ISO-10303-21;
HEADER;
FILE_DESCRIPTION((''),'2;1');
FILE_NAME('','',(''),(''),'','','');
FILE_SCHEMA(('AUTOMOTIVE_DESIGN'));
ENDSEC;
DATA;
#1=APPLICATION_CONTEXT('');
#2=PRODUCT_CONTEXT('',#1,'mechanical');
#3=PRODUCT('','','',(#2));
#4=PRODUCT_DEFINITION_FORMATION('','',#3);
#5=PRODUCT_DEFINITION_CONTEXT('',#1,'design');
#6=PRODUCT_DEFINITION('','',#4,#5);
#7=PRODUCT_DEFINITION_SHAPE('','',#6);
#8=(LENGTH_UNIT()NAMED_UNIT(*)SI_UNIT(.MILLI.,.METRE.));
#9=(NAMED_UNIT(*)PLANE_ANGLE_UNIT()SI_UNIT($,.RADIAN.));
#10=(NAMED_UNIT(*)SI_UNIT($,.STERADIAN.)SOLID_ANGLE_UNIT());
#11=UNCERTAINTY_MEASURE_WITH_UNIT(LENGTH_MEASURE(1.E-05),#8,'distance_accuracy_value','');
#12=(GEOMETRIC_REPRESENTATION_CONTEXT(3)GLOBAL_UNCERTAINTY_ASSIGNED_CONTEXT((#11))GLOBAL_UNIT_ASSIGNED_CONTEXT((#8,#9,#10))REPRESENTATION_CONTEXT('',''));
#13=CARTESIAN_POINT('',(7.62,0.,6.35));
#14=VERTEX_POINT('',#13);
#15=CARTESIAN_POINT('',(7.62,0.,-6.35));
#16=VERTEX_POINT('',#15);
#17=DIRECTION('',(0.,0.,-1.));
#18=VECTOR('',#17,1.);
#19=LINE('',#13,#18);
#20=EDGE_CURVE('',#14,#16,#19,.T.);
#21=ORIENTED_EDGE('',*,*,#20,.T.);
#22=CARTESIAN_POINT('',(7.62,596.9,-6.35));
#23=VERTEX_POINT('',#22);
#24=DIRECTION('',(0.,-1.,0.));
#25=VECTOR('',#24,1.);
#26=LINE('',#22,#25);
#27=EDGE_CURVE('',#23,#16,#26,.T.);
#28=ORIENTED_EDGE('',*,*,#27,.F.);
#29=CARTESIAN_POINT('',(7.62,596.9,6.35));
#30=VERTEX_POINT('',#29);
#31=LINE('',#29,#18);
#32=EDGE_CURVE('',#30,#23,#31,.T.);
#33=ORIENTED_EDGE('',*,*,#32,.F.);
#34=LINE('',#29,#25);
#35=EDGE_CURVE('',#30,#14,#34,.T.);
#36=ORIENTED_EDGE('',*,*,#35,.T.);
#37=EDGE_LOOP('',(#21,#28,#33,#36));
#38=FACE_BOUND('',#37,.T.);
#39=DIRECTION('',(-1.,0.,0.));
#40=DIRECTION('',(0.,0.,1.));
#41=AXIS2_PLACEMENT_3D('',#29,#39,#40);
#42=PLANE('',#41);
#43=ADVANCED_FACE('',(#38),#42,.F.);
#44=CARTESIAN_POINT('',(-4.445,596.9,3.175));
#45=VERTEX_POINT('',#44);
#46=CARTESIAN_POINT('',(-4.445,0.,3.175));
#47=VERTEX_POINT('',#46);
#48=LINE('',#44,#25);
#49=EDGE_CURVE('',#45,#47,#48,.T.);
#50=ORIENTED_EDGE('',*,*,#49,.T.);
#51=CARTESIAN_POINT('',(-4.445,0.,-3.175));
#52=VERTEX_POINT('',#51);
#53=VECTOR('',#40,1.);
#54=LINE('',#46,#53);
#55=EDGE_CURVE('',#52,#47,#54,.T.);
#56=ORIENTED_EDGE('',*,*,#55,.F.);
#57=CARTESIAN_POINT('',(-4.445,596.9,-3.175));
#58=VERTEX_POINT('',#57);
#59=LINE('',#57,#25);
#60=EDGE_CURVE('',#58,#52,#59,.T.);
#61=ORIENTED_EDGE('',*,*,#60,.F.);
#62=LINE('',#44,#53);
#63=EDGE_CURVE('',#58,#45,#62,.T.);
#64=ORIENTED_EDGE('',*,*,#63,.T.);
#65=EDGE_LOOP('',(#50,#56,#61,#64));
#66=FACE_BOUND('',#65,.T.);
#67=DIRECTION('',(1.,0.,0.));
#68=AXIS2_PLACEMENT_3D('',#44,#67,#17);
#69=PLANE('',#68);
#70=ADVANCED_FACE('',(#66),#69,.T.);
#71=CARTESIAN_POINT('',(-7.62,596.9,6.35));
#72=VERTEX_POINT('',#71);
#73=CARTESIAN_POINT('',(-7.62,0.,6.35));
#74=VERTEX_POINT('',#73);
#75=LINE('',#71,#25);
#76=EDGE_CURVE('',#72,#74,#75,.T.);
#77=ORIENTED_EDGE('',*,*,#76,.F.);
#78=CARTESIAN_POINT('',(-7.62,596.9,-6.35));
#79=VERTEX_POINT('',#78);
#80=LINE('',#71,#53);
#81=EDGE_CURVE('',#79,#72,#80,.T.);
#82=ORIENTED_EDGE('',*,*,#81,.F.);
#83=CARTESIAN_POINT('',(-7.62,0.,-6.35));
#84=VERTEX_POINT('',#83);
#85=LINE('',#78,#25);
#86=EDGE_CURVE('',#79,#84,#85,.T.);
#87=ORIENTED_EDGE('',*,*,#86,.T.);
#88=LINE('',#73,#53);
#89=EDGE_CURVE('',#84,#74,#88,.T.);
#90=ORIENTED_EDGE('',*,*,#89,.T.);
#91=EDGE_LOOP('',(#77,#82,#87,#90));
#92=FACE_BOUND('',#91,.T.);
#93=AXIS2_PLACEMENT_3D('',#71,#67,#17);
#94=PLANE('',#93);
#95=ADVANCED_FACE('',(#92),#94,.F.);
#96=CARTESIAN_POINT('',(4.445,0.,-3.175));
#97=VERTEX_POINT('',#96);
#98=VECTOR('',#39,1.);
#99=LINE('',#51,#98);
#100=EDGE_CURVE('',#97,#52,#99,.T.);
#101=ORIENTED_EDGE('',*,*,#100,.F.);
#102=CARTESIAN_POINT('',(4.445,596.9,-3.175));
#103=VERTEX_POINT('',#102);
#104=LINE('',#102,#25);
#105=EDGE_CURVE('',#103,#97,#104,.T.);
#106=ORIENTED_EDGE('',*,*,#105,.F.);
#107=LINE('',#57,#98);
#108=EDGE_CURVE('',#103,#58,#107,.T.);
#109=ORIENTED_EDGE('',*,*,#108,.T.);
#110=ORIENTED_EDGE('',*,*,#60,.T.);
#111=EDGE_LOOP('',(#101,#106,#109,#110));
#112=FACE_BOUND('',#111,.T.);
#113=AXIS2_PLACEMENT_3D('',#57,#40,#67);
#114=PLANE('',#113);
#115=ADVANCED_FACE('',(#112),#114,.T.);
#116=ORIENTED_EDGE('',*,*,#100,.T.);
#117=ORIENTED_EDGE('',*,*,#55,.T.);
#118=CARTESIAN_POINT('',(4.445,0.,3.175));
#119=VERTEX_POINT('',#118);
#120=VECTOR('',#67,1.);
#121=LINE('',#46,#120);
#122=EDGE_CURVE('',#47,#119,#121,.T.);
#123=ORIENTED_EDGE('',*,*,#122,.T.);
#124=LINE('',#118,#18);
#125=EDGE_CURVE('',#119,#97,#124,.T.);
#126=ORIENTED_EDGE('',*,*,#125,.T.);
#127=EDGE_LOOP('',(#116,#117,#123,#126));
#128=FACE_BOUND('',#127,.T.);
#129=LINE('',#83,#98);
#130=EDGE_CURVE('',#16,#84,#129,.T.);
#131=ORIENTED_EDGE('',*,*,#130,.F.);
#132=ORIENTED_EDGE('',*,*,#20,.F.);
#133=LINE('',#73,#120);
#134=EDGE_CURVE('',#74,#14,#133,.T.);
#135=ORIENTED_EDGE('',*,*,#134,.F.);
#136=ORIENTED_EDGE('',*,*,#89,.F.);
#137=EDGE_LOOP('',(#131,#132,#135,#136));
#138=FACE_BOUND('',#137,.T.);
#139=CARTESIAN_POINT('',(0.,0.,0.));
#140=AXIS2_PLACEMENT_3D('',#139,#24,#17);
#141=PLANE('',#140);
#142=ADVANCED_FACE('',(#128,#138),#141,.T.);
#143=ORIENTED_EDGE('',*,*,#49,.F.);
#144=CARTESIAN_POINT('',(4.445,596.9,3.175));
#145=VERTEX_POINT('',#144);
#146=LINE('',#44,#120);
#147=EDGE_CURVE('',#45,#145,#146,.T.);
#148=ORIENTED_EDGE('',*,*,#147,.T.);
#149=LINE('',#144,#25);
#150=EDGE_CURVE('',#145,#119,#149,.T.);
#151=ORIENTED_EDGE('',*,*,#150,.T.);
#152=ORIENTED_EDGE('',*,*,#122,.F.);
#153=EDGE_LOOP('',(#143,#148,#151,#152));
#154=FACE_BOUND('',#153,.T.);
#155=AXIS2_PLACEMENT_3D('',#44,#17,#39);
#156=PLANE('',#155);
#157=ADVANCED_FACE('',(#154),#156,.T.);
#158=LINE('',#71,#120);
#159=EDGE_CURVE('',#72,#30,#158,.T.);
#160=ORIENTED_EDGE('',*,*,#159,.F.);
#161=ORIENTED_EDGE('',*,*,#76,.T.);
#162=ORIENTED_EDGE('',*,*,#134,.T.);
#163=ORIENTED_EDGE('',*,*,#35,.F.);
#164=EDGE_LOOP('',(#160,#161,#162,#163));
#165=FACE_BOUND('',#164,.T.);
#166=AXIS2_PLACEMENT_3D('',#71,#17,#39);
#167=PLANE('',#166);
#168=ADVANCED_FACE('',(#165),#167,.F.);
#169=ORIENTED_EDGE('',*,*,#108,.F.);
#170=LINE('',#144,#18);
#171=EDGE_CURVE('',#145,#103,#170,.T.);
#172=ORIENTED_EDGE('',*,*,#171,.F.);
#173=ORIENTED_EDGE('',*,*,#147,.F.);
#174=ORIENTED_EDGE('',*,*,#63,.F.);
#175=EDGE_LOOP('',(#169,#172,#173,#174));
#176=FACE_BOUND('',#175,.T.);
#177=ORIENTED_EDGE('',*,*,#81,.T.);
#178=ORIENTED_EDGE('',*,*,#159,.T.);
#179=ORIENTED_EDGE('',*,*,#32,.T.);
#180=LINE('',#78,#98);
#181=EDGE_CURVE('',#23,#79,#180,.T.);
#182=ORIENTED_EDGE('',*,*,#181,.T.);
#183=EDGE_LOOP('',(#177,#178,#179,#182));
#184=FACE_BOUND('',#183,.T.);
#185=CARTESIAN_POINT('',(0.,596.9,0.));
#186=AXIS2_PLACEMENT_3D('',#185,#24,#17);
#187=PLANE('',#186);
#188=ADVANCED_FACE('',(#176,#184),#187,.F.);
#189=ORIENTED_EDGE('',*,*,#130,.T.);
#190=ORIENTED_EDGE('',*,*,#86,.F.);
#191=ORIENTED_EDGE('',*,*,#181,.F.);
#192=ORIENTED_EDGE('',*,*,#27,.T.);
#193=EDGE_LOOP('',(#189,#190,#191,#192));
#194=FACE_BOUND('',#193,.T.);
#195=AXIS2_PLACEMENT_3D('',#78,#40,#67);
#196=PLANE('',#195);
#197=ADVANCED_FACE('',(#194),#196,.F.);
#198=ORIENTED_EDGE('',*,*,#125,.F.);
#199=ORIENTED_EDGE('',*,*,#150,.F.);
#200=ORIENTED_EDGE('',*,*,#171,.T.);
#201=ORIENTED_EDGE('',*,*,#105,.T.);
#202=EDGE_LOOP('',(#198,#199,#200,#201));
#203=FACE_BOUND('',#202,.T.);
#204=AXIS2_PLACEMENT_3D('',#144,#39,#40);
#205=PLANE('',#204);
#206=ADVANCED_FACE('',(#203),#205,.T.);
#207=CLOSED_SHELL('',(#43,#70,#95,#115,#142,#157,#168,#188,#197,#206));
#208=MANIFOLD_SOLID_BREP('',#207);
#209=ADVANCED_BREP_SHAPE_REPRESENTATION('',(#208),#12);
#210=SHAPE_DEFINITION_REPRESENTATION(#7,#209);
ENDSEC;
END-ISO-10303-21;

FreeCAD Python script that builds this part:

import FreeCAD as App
import Part
import Sketcher

V = App.Vector
Q = App.Units.Quantity

doc = App.newDocument("Part")
body = doc.addObject("PartDesign::Body", "Body")

# Sketch on XZ plane
sketch1 = body.newObject("Sketcher::SketchObject", "Sketch")
sketch1.AttachmentSupport = (doc.getObject("XZ_Plane"), [""])
sketch1.MapMode = "FlatFace"
sketch1.addGeometry([
    Part.LineSegment(V(-7.62, -6.35, 0), V(-7.62, 6.35, 0)),  # 0
    Part.LineSegment(V(-7.62, 6.35, 0), V(7.62, 6.35, 0)),  # 1
    Part.LineSegment(V(7.62, 6.35, 0), V(7.62, -6.35, 0)),  # 2
    Part.LineSegment(V(7.62, -6.35, 0), V(-7.62, -6.35, 0)),  # 3
    Part.LineSegment(V(4.445, 3.175, 0), V(-4.445, 3.175, 0)),  # 4
    Part.LineSegment(V(-4.445, 3.175, 0), V(-4.445, -3.175, 0)),  # 5
    Part.LineSegment(V(-4.445, -3.175, 0), V(4.445, -3.175, 0)),  # 6
    Part.LineSegment(V(4.445, -3.175, 0), V(4.445, 3.175, 0)),  # 7
], False)
sketch1.addConstraint([
    Sketcher.Constraint("Coincident", 0, 2, 1, 1),
    Sketcher.Constraint("Coincident", 1, 2, 2, 1),
    Sketcher.Constraint("Coincident", 2, 2, 3, 1),
    Sketcher.Constraint("Coincident", 3, 2, 0, 1),
    Sketcher.Constraint("Coincident", 4, 2, 5, 1),
    Sketcher.Constraint("Coincident", 5, 2, 6, 1),
    Sketcher.Constraint("Coincident", 6, 2, 7, 1),
    Sketcher.Constraint("Coincident", 7, 2, 4, 1),
    Sketcher.Constraint("Vertical", 0),
    Sketcher.Constraint("Horizontal", 1),
    Sketcher.Constraint("Vertical", 2),
    Sketcher.Constraint("Horizontal", 3),
    Sketcher.Constraint("Horizontal", 4),
    Sketcher.Constraint("Vertical", 5),
    Sketcher.Constraint("Horizontal", 6),
    Sketcher.Constraint("Vertical", 7),
    Sketcher.Constraint("Symmetric", 0, 2, 2, 2, -1, 1),
    Sketcher.Constraint("Symmetric", 4, 2, 6, 2, -1, 1),
    Sketcher.Constraint("DistanceX", 1, 1, 1, 2, Q("0.6 in")),
    Sketcher.Constraint("DistanceY", 0, 1, 0, 2, Q("0.5 in")),
    Sketcher.Constraint("DistanceX", 4, 2, 4, 1, Q("0.35 in")),
    Sketcher.Constraint("DistanceY", 5, 2, 5, 1, Q("0.25 in")),
])
pad1 = body.newObject("PartDesign::Pad", "Pad")
pad1.Profile = sketch1
pad1.Length = Q("23.5 in")
pad1.Reversed = True

doc.recompute()
